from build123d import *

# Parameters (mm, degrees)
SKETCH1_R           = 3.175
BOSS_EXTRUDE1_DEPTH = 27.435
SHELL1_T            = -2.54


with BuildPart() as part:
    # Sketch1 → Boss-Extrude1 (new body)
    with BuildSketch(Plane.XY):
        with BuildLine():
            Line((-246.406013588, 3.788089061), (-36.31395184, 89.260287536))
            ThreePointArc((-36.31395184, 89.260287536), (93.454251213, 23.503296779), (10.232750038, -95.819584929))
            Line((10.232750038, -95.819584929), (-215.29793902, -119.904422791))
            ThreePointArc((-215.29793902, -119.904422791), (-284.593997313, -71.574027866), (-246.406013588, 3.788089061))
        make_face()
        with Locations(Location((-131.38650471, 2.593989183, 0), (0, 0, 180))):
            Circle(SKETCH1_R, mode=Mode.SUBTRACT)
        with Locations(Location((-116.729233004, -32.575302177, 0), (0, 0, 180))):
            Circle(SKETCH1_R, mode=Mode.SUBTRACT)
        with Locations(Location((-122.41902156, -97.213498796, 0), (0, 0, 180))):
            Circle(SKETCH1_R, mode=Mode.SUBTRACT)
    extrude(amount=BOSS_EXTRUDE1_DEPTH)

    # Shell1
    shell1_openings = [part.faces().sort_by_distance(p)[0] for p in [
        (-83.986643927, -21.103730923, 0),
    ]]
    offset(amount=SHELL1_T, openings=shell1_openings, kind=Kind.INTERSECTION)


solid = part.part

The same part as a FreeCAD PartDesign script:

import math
import FreeCAD as App
import Part
import Sketcher
Q = App.Units.Quantity


def faces_at(feature, points):
    """Names of the faces that lie closest to the given points."""
    faces = feature.Shape.Faces
    near = lambda p: min(range(len(faces)), key=lambda i: faces[i].distToShape(Part.Vertex(*p))[0])
    return sorted({f"Face{near(p) + 1}" for p in points})

doc = App.newDocument("Part")
body = doc.addObject("PartDesign::Body", "Body")

sketch1 = body.newObject("Sketcher::SketchObject", "Sketch")
sketch1.AttachmentSupport = (doc.getObject("XY_Plane"), [""])
sketch1.MapMode = "FlatFace"
sketch1.addGeometry([
    Part.LineSegment(App.Vector(-36.3, 89.3, 0), App.Vector(-246.4, 3.8, 0)),
    Part.ArcOfCircle(Part.Circle(App.Vector(-222.1, -55.9, 0), App.Vector(0, 0, 1), 64.4), math.radians(112), math.radians(276)),
    Part.LineSegment(App.Vector(-215.3, -119.9, 0), App.Vector(10.2, -95.8, 0)),
    Part.ArcOfCircle(Part.Circle(App.Vector(0, 0, 0), App.Vector(0, 0, 1), 96.4), math.radians(-84), math.radians(112)),
    Part.Circle(App.Vector(-122.4, -97.2, 0), App.Vector(0, 0, 1), 3.2),
    Part.Circle(App.Vector(-116.7, -32.6, 0), App.Vector(0, 0, 1), 3.2),
    Part.Circle(App.Vector(-131.4, 2.6, 0), App.Vector(0, 0, 1), 3.2),
], False)
sketch1.addConstraint([
    Sketcher.Constraint("Tangent", 0, 2, 1, 1),
    Sketcher.Constraint("Tangent", 1, 2, 2, 1),
    Sketcher.Constraint("Tangent", 2, 2, 3, 1),
    Sketcher.Constraint("Tangent", 3, 2, 0, 1),
    Sketcher.Constraint("Coincident", 3, 3, -1, 1),
    Sketcher.Constraint("Equal", 4, 5),
    Sketcher.Constraint("Equal", 5, 6),
    Sketcher.Constraint("Diameter", 4, Q("0.25 in")),
    Sketcher.Constraint("Radius", 1, Q("64.402236 mm")),
    Sketcher.Constraint("Radius", 3, Q("96.364423 mm")),
    Sketcher.Constraint("DistanceY", 4, 3, -1, 1, Q("97.213499 mm")),
    Sketcher.Constraint("DistanceY", 6, 3, 0, 2, Q("1.1941 mm")),
    Sketcher.Constraint("DistanceY", 6, 3, 3, 2, Q("86.666298 mm")),
    Sketcher.Constraint("DistanceX", 4, 3, -1, 1, Q("122.419022 mm")),
    Sketcher.Constraint("DistanceY", -1, 1, 6, 3, Q("2.593989 mm")),
    Sketcher.Constraint("DistanceX", 4, 3, 5, 3, Q("5.689789 mm")),
    Sketcher.Constraint("DistanceY", 1, 3, 5, 3, Q("23.291011 mm")),
    Sketcher.Constraint("DistanceX", 6, 3, 5, 3, Q("14.657272 mm")),
])
pad1 = body.newObject("PartDesign::Pad", "Pad")
pad1.Profile = sketch1
pad1.Length = 27.435
doc.recompute()

thickness = body.newObject("PartDesign::Thickness", "Thickness")
thickness.Base = (pad1, faces_at(pad1, [(-95.087, -11.952, 0)]))
thickness.Value = Q("0.1 in")
thickness.Reversed = True
thickness.Join = "Intersection"

doc.recompute()
